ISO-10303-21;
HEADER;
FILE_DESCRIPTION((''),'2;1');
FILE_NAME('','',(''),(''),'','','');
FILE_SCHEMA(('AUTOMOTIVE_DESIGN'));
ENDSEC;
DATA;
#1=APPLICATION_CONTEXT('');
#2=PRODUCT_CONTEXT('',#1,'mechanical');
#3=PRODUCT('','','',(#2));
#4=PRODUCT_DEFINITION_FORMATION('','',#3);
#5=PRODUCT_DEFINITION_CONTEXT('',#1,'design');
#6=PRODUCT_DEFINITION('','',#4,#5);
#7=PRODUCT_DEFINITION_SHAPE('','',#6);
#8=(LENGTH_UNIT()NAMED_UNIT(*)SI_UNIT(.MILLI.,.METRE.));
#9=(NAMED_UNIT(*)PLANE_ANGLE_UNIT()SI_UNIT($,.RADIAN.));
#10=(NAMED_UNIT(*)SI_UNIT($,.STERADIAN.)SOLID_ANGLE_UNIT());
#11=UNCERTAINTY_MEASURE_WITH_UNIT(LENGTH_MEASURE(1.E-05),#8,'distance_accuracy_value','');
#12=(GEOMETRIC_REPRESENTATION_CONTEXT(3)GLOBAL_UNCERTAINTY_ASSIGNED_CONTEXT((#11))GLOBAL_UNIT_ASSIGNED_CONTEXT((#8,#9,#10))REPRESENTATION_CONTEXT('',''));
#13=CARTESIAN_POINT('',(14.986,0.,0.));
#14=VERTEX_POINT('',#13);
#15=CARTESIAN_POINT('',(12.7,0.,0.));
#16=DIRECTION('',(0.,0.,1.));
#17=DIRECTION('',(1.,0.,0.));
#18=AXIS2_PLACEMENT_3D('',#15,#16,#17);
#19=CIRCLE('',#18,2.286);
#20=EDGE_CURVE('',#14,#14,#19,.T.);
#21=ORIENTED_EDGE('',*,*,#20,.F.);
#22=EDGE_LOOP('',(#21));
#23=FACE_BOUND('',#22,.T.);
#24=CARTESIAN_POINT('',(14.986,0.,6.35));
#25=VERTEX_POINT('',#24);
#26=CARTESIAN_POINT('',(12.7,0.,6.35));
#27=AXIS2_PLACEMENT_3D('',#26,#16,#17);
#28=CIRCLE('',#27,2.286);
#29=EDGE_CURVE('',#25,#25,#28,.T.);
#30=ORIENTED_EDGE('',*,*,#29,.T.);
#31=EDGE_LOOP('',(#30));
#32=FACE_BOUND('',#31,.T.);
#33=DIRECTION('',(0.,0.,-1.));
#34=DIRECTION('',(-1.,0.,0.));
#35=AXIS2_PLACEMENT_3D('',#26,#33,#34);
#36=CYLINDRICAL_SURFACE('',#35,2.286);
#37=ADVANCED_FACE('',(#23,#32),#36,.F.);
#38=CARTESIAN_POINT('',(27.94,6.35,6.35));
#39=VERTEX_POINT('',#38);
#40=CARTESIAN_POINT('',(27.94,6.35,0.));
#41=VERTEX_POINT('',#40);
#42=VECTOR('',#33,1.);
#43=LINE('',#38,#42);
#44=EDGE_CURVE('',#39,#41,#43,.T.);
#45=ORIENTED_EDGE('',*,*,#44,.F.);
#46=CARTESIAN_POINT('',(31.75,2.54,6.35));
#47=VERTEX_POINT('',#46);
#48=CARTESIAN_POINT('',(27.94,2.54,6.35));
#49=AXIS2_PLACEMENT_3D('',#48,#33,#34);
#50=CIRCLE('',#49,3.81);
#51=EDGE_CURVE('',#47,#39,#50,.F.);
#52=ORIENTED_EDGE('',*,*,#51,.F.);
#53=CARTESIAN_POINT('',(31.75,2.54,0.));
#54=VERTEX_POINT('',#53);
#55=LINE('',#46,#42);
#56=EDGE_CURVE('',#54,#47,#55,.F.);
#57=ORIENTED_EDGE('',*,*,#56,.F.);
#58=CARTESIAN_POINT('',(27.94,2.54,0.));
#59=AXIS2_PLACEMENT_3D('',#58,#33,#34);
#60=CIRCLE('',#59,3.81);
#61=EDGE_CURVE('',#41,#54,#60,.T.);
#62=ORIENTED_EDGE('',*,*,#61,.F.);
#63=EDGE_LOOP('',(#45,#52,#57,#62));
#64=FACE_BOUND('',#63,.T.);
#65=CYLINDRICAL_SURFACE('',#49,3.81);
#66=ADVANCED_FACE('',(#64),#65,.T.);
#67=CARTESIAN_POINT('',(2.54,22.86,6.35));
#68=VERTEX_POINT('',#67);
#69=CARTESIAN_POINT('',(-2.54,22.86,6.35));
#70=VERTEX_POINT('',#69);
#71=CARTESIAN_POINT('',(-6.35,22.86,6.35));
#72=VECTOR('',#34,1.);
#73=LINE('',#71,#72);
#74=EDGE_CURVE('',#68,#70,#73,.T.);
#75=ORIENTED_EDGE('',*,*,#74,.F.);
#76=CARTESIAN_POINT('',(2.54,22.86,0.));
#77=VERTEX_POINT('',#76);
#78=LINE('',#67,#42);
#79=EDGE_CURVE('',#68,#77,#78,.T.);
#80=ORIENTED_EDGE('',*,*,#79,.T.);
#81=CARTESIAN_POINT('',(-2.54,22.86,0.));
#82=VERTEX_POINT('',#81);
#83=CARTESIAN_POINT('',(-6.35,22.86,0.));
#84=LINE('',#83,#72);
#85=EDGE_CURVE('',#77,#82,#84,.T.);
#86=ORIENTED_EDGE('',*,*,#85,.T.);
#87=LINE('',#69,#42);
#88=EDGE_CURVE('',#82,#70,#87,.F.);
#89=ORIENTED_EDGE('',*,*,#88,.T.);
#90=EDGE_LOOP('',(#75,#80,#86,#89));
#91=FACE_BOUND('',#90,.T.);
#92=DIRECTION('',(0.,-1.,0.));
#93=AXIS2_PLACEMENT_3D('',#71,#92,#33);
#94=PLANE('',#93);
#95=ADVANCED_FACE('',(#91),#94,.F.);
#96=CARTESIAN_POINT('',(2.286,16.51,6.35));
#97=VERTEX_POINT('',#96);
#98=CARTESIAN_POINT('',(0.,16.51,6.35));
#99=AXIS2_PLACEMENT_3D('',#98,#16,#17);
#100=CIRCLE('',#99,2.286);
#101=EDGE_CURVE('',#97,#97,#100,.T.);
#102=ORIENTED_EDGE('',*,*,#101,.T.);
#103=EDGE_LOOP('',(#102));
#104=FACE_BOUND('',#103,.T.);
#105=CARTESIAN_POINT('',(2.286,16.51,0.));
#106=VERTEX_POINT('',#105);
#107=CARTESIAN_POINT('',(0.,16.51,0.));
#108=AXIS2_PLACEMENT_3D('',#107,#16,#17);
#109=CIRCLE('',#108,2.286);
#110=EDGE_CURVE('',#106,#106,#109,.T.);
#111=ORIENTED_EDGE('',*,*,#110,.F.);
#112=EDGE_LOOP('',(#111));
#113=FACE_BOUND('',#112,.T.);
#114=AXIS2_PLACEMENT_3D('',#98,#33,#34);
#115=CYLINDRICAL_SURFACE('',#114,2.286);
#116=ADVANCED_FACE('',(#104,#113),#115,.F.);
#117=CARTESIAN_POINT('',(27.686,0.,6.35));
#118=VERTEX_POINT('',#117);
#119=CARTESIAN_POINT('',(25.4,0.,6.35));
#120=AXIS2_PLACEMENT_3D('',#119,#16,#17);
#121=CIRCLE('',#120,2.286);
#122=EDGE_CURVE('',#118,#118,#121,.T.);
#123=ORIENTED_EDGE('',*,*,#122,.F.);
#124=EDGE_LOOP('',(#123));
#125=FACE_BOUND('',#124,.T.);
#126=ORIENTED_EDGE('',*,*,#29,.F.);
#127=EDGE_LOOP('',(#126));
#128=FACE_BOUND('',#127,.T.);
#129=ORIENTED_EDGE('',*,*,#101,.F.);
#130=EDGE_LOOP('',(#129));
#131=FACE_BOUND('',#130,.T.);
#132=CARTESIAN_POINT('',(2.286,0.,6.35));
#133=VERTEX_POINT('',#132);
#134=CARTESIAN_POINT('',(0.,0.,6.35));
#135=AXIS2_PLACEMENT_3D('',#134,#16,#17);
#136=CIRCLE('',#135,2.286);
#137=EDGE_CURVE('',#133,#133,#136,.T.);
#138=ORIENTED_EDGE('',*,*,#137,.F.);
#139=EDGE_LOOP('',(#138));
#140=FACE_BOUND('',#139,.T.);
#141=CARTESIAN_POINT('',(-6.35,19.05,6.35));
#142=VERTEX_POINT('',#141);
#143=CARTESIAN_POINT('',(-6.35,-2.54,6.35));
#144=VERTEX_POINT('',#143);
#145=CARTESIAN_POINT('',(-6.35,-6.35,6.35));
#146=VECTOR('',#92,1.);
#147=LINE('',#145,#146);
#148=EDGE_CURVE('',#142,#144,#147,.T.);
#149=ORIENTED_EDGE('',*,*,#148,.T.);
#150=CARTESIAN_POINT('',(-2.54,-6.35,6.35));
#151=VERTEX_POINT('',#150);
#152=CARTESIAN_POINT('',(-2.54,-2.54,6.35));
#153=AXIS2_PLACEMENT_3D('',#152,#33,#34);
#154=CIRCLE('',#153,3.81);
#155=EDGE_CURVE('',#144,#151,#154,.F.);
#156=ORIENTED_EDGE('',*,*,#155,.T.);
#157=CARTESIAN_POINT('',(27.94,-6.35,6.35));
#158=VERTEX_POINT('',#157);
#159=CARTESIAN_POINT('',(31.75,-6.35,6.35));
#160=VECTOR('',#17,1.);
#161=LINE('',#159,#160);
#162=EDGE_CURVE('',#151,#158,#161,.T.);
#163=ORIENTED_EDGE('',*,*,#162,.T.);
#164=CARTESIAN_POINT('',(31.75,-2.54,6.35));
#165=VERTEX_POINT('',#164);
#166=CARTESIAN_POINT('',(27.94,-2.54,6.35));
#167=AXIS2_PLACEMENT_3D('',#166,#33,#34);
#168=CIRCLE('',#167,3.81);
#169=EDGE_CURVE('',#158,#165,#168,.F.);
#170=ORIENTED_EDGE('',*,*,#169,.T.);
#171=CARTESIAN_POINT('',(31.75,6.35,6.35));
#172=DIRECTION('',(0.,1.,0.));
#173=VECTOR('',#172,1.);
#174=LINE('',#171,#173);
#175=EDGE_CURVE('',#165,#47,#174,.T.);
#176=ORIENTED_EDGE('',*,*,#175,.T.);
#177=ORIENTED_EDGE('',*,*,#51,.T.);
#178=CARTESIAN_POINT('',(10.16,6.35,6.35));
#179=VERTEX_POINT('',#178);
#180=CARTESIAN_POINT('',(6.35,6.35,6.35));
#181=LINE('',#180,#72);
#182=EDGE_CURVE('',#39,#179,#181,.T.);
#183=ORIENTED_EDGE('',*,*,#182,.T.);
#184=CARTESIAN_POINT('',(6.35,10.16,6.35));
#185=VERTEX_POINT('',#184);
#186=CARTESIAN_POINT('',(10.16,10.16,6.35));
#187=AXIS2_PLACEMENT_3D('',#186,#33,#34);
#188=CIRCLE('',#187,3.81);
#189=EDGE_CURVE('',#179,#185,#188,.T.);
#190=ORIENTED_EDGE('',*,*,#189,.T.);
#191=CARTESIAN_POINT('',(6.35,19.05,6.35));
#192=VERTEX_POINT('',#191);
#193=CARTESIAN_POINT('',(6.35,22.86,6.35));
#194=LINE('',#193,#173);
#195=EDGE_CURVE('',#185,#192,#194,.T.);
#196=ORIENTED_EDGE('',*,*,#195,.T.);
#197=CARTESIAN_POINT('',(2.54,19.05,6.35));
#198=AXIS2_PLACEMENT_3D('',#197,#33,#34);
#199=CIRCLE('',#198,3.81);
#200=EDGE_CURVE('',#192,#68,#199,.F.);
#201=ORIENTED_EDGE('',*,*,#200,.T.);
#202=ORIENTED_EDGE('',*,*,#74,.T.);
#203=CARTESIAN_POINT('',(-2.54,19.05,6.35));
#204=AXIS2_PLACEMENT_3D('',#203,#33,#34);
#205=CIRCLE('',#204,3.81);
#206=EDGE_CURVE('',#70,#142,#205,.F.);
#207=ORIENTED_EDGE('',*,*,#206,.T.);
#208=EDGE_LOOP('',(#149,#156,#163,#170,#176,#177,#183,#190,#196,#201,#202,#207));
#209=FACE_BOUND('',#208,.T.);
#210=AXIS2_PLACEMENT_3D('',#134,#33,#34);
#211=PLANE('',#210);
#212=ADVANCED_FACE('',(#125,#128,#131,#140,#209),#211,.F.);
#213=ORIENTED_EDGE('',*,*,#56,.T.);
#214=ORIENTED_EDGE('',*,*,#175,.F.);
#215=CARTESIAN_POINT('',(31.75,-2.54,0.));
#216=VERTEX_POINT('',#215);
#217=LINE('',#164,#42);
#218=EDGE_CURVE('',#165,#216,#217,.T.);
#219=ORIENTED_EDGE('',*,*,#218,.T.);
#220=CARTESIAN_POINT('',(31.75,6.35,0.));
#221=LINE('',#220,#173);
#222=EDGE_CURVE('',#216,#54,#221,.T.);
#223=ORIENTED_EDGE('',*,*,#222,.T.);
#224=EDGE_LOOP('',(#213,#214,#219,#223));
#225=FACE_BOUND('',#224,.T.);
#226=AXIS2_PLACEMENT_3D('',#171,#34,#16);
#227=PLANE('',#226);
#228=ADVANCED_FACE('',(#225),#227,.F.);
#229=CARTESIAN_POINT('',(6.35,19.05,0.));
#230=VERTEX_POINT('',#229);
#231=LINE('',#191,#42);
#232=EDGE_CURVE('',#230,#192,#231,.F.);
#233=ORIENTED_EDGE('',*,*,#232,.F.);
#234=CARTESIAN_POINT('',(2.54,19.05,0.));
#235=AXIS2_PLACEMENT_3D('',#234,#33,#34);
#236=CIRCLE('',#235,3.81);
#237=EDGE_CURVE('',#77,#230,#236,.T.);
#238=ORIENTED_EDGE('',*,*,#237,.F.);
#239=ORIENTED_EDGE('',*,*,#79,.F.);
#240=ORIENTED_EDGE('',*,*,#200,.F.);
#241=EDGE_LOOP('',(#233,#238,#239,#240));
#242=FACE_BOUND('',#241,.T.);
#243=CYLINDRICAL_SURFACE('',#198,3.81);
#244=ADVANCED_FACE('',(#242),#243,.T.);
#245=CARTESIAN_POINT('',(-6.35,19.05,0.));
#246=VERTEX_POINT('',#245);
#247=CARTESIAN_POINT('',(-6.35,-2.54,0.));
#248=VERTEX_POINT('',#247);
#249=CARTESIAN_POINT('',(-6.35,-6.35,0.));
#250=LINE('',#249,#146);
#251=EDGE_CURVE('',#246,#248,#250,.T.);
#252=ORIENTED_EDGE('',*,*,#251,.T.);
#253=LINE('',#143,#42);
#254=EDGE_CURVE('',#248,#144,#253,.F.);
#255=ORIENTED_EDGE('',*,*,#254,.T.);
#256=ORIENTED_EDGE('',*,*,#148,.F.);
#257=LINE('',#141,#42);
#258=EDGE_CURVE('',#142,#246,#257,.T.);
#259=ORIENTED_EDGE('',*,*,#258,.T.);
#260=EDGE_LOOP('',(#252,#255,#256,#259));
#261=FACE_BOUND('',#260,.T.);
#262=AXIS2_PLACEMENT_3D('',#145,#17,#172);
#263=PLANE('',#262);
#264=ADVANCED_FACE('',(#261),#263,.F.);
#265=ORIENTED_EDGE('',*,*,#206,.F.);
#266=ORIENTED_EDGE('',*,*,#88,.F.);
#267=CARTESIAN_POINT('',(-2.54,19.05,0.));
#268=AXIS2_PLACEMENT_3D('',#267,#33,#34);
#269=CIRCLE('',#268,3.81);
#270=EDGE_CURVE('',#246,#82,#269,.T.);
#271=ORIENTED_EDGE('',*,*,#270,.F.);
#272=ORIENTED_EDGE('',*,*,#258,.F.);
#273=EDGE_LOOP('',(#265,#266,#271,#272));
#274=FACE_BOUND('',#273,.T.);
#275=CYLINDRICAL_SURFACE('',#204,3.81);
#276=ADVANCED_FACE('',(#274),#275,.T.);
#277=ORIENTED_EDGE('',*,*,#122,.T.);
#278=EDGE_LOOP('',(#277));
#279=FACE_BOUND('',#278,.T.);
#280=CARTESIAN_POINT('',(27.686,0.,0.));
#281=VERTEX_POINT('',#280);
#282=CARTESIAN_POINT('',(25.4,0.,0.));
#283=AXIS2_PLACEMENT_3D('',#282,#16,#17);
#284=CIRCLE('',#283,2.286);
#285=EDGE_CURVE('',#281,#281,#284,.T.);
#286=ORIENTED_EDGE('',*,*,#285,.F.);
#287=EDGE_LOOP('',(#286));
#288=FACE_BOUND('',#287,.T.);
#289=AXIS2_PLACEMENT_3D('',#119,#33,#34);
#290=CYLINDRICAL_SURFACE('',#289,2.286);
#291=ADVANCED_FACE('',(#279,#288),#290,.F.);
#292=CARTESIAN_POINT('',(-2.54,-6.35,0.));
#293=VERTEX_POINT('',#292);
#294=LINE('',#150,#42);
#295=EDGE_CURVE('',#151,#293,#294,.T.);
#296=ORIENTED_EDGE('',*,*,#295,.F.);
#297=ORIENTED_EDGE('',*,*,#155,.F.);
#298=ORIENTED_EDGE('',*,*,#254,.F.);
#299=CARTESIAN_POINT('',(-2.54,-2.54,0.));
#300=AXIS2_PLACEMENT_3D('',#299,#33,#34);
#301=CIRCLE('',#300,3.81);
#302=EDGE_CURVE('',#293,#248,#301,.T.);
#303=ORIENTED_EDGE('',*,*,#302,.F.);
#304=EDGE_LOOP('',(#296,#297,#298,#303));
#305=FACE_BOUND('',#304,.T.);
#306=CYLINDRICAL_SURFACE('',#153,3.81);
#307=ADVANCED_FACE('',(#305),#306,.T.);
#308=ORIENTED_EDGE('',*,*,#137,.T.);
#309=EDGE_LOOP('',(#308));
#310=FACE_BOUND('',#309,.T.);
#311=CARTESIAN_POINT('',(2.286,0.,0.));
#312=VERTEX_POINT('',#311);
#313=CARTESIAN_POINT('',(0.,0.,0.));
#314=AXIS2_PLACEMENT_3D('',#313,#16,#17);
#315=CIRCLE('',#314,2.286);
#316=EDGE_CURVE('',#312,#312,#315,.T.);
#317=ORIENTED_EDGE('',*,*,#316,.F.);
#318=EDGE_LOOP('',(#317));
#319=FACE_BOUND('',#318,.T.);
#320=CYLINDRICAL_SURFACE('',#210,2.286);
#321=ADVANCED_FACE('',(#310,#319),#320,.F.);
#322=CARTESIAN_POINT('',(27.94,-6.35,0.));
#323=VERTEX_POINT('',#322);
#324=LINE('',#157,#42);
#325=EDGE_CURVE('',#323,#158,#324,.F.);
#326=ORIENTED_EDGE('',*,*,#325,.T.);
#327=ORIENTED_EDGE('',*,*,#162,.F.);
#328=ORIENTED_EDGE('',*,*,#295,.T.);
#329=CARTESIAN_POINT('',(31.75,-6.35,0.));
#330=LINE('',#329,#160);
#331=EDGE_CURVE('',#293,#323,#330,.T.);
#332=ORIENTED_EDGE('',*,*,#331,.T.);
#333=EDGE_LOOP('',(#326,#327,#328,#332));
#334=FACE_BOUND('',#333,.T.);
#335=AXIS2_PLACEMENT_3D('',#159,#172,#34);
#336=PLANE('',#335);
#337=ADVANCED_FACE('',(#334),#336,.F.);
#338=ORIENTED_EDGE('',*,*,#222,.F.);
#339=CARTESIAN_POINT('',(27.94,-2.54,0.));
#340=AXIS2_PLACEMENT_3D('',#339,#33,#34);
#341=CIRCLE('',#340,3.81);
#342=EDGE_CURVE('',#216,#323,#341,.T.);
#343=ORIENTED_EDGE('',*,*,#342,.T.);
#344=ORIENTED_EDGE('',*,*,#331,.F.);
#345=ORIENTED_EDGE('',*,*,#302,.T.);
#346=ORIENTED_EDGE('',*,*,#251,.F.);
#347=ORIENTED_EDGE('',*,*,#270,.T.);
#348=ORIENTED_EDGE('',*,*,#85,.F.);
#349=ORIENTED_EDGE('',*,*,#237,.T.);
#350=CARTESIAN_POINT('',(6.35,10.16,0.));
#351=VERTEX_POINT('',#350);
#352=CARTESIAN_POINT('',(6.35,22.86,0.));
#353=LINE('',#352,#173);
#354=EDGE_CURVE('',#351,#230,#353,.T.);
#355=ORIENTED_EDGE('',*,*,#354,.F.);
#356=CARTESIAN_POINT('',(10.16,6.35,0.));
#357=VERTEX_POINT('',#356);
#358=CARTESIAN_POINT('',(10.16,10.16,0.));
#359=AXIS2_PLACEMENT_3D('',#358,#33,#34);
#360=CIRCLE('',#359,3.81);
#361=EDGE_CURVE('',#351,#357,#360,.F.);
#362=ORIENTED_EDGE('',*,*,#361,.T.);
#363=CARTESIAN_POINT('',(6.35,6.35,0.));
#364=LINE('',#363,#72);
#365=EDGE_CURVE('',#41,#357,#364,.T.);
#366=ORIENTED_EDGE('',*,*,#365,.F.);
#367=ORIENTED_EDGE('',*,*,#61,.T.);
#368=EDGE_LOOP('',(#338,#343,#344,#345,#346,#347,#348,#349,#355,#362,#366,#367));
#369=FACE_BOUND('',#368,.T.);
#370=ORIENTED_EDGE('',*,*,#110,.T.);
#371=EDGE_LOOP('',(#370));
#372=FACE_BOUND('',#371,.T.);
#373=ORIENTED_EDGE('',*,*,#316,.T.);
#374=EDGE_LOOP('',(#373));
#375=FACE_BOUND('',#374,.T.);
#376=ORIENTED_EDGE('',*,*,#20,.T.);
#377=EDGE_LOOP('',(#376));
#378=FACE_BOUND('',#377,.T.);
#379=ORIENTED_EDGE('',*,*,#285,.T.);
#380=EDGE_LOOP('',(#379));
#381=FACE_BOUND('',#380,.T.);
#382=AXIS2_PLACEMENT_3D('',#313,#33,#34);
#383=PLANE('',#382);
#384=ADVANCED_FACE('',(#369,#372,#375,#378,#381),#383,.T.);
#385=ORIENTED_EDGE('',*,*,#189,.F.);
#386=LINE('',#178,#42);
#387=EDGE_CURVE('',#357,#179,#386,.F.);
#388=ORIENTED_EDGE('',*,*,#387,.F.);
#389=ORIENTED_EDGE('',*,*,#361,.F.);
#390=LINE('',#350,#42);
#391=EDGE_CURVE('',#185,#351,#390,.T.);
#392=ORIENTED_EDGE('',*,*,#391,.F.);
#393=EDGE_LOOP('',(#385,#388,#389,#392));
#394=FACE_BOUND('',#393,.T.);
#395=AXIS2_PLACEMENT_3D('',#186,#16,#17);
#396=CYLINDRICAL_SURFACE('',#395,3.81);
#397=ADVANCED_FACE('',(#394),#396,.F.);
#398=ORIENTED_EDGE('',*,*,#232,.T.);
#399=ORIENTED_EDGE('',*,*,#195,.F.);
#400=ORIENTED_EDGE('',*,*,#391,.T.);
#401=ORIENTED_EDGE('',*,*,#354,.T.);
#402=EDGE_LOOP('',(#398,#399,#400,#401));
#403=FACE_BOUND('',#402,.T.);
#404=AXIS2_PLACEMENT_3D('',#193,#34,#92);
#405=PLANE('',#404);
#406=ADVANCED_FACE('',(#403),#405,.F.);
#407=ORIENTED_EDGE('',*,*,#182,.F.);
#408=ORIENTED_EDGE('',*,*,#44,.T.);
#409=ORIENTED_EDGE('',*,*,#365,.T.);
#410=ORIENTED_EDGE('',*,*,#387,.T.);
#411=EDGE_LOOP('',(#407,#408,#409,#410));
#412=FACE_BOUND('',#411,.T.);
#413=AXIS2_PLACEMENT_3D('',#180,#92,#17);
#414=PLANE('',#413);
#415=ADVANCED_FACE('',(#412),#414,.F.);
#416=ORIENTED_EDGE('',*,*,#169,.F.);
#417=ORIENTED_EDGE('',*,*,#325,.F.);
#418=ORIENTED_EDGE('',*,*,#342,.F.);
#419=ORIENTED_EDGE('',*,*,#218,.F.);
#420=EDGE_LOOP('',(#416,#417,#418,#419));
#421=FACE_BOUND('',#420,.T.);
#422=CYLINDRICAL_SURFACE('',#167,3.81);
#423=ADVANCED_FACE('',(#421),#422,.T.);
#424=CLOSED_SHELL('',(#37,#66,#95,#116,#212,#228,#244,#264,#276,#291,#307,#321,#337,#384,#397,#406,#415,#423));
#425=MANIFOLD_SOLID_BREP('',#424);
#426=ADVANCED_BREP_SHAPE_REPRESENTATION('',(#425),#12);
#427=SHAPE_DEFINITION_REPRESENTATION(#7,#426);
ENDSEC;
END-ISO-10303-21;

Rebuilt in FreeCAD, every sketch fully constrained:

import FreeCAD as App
import Part
import Sketcher

V = App.Vector
Q = App.Units.Quantity


def edges_at(feature, points):
    """Names of the edges that pass closest to the given points."""
    edges = feature.Shape.Edges
    near = lambda p: min(range(len(edges)), key=lambda i: edges[i].distToShape(Part.Vertex(*p))[0])
    return sorted({f"Edge{near(p) + 1}" for p in points})

doc = App.newDocument("Part")
body = doc.addObject("PartDesign::Body", "Body")

sketch1 = body.newObject("Sketcher::SketchObject", "Sketch")
sketch1.AttachmentSupport = (doc.getObject("XY_Plane"), [""])
sketch1.MapMode = "FlatFace"
sketch1.addGeometry([
    Part.LineSegment(V(-6.3, 22.9, 0), V(-6.3, -6.3, 0)),
    Part.LineSegment(V(-6.3, -6.3, 0), V(31.8, -6.3, 0)),
    Part.LineSegment(V(31.8, -6.3, 0), V(31.8, 6.3, 0)),
    Part.LineSegment(V(31.8, 6.3, 0), V(6.3, 6.3, 0)),
    Part.LineSegment(V(6.3, 6.3, 0), V(6.3, 22.9, 0)),
    Part.LineSegment(V(6.3, 22.9, 0), V(-6.3, 22.9, 0)),
    Part.Circle(V(25.4, 0, 0), V(0, 0, 1), 2.3),
    Part.Circle(V(12.7, 0, 0), V(0, 0, 1), 2.3),
    Part.Circle(V(0, 0, 0), V(0, 0, 1), 2.3),
    Part.Circle(V(0, 16.5, 0), V(0, 0, 1), 2.3),
], False)
sketch1.addConstraint([
    Sketcher.Constraint("Coincident", 0, 2, 1, 1),
    Sketcher.Constraint("Coincident", 1, 2, 2, 1),
    Sketcher.Constraint("Coincident", 2, 2, 3, 1),
    Sketcher.Constraint("Coincident", 3, 2, 4, 1),
    Sketcher.Constraint("Coincident", 4, 2, 5, 1),
    Sketcher.Constraint("Coincident", 5, 2, 0, 1),
    Sketcher.Constraint("Vertical", 0),
    Sketcher.Constraint("Horizontal", 1),
    Sketcher.Constraint("Vertical", 2),
    Sketcher.Constraint("Horizontal", 3),
    Sketcher.Constraint("Vertical", 4),
    Sketcher.Constraint("Horizontal", 5),
    Sketcher.Constraint("Coincident", 8, 3, -1, 1),
    Sketcher.Constraint("Equal", 6, 7),
    Sketcher.Constraint("Equal", 7, 8),
    Sketcher.Constraint("Equal", 8, 9),
    Sketcher.Constraint("Symmetric", 0, 2, 3, 2, -1, 1),
    Sketcher.Constraint("PointOnObject", 6, 3, -1),
    Sketcher.Constraint("PointOnObject", 7, 3, -1),
    Sketcher.Constraint("PointOnObject", 9, 3, -2),
    Sketcher.Constraint("Equal", 5, 2),
    Sketcher.Constraint("Diameter", 6, Q("0.18 in")),
    Sketcher.Constraint("DistanceX", 3, 2, 3, 1, Q("1 in")),
    Sketcher.Constraint("DistanceX", 1, 1, 1, 2, Q("1.5 in")),
    Sketcher.Constraint("DistanceX", -1, 1, 6, 3, Q("1 in")),
    Sketcher.Constraint("DistanceY", 0, 2, 0, 1, Q("1.15 in")),
    Sketcher.Constraint("DistanceX", -1, 1, 7, 3, Q("0.5 in")),
    Sketcher.Constraint("DistanceY", 0, 2, 9, 3, Q("0.9 in")),
])
pad1 = body.newObject("PartDesign::Pad", "Pad")
pad1.Profile = sketch1
pad1.Length = Q("0.25 in")
doc.recompute()

fillet = body.newObject("PartDesign::Fillet", "Fillet")
fillet.Base = (pad1, edges_at(pad1, [
    (-6.35, -6.35, 3.175),
    (-6.35, 22.86, 3.175),
    (6.35, 22.86, 3.175),
    (6.35, 6.35, 3.175),
    (31.75, 6.35, 3.175),
    (31.75, -6.35, 3.175),
]))
fillet.Radius = Q("0.15 in")

doc.recompute()
